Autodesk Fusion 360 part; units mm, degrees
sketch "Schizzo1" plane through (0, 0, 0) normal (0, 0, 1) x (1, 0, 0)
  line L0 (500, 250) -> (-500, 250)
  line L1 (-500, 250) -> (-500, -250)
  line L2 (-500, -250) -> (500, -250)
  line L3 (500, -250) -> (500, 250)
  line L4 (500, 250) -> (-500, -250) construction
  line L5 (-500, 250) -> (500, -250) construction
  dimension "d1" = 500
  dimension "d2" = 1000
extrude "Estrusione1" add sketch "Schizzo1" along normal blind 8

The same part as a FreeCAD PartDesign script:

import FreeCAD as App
import Part
import Sketcher


def add_polygon(sketch, points):
    """Adds a closed chain of lines whose ends are joined by coincident constraints."""
    first, n = sketch.GeometryCount, len(points)
    for a, b in zip(points, points[1:] + points[:1]):
        sketch.addGeometry(Part.LineSegment(App.Vector(*a, 0), App.Vector(*b, 0)), False)
    for i in range(n):
        sketch.addConstraint(Sketcher.Constraint("Coincident", first + i, 2, first + (i + 1) % n, 1))

doc = App.newDocument("Part")
body = doc.addObject("PartDesign::Body", "Body")

sketch1 = body.newObject("Sketcher::SketchObject", "Sketch")
sketch1.AttachmentSupport = (doc.getObject("XY_Plane"), [""])
sketch1.MapMode = "FlatFace"
add_polygon(sketch1, [(500, -250), (500, 250), (-500, 250), (-500, -250)])
sketch1.addConstraint([
    Sketcher.Constraint("Vertical", 0),
    Sketcher.Constraint("Horizontal", 1),
    Sketcher.Constraint("Vertical", 2),
    Sketcher.Constraint("Horizontal", 3),
    Sketcher.Constraint("Symmetric", 0, 2, 2, 2, -1, 1),
    Sketcher.Constraint("DistanceX", 1, 2, 1, 1, 1000.0),
    Sketcher.Constraint("DistanceY", 0, 1, 0, 2, 500.0),
])
pad1 = body.newObject("PartDesign::Pad", "Pad")
pad1.Profile = sketch1
pad1.Length = 8

doc.recompute()
